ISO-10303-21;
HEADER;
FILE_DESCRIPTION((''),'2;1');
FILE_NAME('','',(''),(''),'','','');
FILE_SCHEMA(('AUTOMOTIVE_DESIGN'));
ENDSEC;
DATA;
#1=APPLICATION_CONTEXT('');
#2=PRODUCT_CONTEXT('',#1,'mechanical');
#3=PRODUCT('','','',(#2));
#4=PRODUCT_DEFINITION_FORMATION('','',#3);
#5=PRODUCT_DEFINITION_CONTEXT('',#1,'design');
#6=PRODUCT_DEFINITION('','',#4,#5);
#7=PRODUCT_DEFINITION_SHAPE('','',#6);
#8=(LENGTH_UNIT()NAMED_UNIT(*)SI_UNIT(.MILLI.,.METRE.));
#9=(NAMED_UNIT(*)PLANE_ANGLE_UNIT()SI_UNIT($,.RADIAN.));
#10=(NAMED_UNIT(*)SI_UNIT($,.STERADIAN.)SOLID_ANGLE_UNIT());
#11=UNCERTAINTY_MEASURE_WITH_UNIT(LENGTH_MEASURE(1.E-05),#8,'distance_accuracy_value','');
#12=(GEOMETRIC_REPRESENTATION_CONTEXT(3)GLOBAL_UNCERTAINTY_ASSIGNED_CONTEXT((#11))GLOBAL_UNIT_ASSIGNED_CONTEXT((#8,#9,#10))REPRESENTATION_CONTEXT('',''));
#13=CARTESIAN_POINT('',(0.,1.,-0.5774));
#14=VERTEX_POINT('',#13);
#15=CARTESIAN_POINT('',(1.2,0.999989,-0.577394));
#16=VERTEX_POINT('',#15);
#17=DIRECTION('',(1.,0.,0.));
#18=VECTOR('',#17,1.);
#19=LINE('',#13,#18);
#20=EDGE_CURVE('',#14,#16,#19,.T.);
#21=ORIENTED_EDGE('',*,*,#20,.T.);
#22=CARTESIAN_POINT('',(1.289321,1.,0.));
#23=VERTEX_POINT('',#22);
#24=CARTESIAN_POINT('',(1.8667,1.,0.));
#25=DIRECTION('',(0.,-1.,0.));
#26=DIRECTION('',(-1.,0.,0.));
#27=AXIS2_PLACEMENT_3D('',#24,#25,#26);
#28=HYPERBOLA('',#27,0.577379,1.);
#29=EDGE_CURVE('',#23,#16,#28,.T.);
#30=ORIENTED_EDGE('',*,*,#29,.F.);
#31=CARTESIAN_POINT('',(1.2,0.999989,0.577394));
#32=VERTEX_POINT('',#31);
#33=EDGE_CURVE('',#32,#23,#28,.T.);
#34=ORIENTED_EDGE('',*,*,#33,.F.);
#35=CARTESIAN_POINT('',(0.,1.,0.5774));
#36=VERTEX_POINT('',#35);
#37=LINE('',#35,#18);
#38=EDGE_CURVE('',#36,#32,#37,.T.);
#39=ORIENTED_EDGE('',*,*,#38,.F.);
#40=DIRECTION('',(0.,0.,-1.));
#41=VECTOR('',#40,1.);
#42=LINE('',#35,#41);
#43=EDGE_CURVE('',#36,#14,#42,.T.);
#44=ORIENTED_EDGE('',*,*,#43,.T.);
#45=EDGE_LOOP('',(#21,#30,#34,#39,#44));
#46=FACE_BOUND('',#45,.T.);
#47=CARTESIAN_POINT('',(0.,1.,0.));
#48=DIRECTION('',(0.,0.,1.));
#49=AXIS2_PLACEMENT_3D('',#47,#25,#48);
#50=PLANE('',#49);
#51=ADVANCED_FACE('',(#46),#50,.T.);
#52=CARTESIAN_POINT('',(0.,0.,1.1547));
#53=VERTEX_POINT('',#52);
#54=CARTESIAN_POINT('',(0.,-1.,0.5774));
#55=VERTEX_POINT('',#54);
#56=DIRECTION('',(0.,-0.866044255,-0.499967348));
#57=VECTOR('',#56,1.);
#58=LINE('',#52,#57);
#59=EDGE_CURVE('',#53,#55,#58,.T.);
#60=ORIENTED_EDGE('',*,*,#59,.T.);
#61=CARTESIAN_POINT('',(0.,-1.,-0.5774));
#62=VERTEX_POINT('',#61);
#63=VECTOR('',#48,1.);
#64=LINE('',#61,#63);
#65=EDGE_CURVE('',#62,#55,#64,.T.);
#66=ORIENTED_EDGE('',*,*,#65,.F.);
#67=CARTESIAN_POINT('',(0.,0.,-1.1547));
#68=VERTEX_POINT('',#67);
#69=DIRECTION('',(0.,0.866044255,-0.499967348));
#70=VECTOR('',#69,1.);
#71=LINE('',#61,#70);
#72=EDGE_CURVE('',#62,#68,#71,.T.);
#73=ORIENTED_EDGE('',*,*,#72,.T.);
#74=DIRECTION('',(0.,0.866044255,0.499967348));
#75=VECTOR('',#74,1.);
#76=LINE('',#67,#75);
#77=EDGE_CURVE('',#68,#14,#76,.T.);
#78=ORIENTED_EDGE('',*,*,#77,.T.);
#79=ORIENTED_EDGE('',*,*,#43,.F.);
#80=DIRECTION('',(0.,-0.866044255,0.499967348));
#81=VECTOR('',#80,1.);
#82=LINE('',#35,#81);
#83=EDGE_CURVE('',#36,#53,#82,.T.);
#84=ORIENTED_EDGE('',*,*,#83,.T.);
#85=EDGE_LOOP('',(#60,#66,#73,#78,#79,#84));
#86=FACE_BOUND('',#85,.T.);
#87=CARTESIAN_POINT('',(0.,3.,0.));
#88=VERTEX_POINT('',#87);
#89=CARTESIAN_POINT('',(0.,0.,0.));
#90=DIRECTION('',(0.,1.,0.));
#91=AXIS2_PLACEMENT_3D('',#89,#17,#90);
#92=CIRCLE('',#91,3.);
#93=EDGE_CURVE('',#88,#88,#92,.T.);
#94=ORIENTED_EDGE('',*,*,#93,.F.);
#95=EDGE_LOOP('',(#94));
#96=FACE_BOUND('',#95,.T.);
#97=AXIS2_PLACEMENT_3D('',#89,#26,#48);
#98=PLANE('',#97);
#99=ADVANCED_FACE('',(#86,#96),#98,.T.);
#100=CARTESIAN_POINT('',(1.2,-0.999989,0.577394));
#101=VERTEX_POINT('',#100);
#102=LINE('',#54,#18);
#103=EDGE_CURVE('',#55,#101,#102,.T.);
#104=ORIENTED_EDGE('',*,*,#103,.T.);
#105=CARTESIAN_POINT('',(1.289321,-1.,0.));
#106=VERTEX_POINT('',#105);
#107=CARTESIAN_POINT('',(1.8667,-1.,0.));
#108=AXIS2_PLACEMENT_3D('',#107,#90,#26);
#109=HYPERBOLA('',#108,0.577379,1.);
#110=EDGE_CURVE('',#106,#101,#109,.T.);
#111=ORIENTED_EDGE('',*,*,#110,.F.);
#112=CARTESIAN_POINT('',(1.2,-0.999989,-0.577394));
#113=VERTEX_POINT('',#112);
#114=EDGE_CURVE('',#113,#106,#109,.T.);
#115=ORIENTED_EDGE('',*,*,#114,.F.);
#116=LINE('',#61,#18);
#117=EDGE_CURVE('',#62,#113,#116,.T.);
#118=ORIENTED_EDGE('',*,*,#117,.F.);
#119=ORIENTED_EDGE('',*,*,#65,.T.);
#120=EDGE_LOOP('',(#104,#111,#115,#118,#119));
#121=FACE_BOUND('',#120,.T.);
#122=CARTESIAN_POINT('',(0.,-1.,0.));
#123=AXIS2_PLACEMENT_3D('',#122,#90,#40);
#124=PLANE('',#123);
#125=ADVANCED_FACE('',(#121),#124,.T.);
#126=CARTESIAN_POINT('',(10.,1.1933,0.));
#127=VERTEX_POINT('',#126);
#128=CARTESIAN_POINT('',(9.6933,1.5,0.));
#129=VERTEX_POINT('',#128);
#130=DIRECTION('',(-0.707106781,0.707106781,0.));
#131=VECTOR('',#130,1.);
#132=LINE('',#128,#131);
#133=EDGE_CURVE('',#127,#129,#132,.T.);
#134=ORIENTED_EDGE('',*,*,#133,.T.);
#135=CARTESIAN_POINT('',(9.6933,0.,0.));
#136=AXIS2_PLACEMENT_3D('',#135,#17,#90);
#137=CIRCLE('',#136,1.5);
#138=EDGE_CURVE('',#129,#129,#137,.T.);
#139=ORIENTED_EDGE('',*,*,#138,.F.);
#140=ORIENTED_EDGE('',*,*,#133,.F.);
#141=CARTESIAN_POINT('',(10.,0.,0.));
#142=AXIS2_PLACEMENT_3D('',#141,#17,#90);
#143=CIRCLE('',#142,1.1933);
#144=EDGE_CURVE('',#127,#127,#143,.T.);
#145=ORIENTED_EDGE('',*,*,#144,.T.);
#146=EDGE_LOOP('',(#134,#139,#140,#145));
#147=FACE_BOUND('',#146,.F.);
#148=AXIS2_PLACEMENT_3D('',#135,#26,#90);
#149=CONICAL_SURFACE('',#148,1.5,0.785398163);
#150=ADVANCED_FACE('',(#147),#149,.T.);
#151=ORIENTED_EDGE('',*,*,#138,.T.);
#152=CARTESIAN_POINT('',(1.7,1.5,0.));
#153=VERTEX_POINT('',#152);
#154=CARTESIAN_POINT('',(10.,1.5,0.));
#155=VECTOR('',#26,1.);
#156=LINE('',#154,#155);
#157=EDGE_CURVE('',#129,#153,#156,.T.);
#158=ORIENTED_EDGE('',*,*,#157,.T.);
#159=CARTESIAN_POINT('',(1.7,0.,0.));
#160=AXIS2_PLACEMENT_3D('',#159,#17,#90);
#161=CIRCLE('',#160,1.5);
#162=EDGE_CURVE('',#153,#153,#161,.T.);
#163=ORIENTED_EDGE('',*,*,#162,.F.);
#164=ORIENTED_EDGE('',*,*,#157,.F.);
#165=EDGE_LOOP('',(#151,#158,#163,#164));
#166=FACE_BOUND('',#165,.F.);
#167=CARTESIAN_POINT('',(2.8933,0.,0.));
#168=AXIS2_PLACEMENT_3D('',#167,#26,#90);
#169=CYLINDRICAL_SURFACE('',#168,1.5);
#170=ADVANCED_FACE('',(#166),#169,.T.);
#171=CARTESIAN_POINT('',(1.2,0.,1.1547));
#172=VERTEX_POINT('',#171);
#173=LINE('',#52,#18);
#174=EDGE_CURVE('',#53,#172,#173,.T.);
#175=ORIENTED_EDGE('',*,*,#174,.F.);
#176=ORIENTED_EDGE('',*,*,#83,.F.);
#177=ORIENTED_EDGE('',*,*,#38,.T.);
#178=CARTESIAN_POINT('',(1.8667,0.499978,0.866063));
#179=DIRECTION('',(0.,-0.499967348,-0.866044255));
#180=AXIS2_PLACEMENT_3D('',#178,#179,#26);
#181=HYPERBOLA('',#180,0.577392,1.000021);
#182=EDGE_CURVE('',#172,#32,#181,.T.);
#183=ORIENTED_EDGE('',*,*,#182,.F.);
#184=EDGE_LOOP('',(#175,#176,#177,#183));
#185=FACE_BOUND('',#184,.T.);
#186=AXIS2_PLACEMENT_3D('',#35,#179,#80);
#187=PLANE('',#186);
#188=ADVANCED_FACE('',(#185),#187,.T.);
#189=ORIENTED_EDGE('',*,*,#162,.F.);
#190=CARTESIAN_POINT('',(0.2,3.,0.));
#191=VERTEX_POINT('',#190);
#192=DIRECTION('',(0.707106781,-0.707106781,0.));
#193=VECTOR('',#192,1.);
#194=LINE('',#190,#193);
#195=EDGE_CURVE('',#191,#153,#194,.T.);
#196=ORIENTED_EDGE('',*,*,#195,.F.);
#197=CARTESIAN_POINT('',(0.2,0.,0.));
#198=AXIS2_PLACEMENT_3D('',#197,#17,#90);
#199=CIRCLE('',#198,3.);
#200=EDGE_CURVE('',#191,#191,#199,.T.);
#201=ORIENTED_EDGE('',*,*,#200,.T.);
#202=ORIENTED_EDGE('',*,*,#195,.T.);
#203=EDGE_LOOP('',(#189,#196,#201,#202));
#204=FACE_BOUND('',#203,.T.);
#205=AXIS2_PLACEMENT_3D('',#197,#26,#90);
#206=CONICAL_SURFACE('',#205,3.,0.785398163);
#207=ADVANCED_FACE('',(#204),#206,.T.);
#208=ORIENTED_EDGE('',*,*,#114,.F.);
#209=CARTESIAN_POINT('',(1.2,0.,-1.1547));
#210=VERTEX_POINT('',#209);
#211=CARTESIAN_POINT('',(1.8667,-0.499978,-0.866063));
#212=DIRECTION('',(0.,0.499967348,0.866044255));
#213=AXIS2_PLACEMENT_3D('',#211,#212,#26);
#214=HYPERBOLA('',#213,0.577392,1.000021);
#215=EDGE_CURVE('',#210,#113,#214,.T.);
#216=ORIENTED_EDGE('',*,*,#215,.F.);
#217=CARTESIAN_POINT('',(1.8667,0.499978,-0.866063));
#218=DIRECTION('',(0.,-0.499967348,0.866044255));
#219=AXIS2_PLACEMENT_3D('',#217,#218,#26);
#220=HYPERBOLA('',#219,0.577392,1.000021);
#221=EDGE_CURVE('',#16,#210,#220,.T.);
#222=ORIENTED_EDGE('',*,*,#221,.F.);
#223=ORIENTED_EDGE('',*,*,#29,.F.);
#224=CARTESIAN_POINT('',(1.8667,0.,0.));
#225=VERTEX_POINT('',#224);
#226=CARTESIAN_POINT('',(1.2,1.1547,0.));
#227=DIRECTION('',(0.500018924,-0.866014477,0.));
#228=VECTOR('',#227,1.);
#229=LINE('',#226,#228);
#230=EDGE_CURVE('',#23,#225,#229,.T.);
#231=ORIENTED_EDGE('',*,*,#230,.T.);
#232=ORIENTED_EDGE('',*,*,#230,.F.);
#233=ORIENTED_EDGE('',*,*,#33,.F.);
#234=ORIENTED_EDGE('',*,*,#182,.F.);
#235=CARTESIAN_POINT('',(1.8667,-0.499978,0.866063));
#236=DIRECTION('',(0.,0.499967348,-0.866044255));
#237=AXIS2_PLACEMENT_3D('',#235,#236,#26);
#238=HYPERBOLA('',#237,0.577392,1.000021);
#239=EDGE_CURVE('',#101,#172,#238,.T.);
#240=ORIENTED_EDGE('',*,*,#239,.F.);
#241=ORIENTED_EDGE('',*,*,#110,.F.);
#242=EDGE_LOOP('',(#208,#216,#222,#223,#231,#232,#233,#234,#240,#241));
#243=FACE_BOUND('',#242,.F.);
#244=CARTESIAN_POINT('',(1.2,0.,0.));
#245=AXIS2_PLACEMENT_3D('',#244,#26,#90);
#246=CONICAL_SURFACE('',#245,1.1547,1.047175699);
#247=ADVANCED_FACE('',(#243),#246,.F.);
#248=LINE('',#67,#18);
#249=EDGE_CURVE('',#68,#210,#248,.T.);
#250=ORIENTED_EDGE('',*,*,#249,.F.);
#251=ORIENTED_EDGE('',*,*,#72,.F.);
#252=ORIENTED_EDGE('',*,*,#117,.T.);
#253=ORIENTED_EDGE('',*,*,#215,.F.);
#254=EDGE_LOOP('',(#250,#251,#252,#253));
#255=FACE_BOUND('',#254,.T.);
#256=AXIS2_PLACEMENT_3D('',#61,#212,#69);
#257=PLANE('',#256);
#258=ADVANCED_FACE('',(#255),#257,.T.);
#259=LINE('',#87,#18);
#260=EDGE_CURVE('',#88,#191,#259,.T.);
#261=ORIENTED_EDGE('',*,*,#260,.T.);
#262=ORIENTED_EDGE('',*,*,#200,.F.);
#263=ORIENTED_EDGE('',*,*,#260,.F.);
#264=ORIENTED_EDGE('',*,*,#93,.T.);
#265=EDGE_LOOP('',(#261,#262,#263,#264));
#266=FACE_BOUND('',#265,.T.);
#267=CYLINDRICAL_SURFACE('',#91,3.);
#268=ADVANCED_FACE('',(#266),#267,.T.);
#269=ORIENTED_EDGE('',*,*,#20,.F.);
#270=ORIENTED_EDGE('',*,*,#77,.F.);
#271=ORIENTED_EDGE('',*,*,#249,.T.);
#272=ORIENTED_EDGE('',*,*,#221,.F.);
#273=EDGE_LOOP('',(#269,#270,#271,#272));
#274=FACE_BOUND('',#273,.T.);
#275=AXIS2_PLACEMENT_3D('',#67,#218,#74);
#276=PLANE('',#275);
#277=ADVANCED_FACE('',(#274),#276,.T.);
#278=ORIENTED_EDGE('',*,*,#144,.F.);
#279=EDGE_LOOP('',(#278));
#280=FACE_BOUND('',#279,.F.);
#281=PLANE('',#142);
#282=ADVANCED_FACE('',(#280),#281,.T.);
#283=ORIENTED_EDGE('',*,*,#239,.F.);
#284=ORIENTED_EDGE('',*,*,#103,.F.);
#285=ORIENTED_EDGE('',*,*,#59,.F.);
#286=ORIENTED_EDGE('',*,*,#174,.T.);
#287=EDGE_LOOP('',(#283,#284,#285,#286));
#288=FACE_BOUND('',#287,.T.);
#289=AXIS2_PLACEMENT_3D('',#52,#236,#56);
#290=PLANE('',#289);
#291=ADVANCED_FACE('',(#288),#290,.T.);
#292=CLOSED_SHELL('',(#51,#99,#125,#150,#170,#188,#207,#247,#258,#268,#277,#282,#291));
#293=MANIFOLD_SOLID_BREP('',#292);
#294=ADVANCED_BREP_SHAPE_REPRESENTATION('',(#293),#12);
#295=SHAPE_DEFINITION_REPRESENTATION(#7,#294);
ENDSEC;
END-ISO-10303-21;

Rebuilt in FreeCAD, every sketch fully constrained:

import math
import FreeCAD as App
import Part
import Sketcher
from FreeCAD import Vector
Q = App.Units.Quantity


def edges_at(feature, points):
    """Names of the edges that pass closest to the given points."""
    edges = feature.Shape.Edges
    near = lambda p: min(range(len(edges)), key=lambda i: edges[i].distToShape(Part.Vertex(*p))[0])
    return sorted({f"Edge{near(p) + 1}" for p in points})

doc = App.newDocument("Part")
params = doc.addObject("Spreadsheet::Sheet", "Params")
for row, (alias, value) in enumerate([
    ("sketch1_width", "1.2 mm"),
    ("sketch1_width2", "0.2 mm"),
    ("revolution_angle", "360 deg"),
    ("chamfer_size", "0.3067 mm"),
    ("chamfer_size2", "0.3067 mm"),
], start=1):
    params.set(f"A{row}", alias)
    params.set(f"B{row}", "=" + value)
    params.setAlias(f"B{row}", alias)

body = doc.addObject("PartDesign::Body", "Body")

# Sketch on XY plane
sketch1 = body.newObject("Sketcher::SketchObject", "Sketch")
sketch1.AttachmentSupport = (doc.getObject("XY_Plane"), [""])
sketch1.MapMode = "FlatFace"
sketch1.addGeometry(Part.LineSegment(Vector(1.8667, 0, 0), Vector(10, 0, 0)), False)
sketch1.addGeometry(Part.LineSegment(Vector(10, 0, 0), Vector(10, 1.5, 0)), False)
sketch1.addGeometry(Part.LineSegment(Vector(10, 1.5, 0), Vector(1.7, 1.5, 0)), False)
sketch1.addGeometry(Part.LineSegment(Vector(1.7, 1.5, 0), Vector(0.2, 3, 0)), False)
sketch1.addGeometry(Part.LineSegment(Vector(0.2, 3, 0), Vector(0, 3, 0)), False)
sketch1.addGeometry(Part.LineSegment(Vector(0, 3, 0), Vector(0, 1.1547, 0)), False)
sketch1.addGeometry(Part.LineSegment(Vector(0, 1.1547, 0), Vector(1.2, 1.1547, 0)), False)
sketch1.addGeometry(Part.LineSegment(Vector(1.2, 1.1547, 0), Vector(1.8667, 0, 0)), False)
sketch1.addConstraint(Sketcher.Constraint("Coincident", 0, 2, 1, 1))
sketch1.addConstraint(Sketcher.Constraint("Coincident", 1, 2, 2, 1))
sketch1.addConstraint(Sketcher.Constraint("Coincident", 2, 2, 3, 1))
sketch1.addConstraint(Sketcher.Constraint("Coincident", 3, 2, 4, 1))
sketch1.addConstraint(Sketcher.Constraint("Coincident", 4, 2, 5, 1))
sketch1.addConstraint(Sketcher.Constraint("Coincident", 5, 2, 6, 1))
sketch1.addConstraint(Sketcher.Constraint("Coincident", 6, 2, 7, 1))
sketch1.addConstraint(Sketcher.Constraint("Coincident", 7, 2, 0, 1))
sketch1.addConstraint(Sketcher.Constraint("Horizontal", 0))
sketch1.addConstraint(Sketcher.Constraint("Vertical", 1))
sketch1.addConstraint(Sketcher.Constraint("Horizontal", 2))
sketch1.addConstraint(Sketcher.Constraint("Horizontal", 4))
sketch1.addConstraint(Sketcher.Constraint("Vertical", 5))
sketch1.addConstraint(Sketcher.Constraint("Horizontal", 6))
sketch1.addConstraint(Sketcher.Constraint("PointOnObject", 0, 2, -1))
sketch1.addConstraint(Sketcher.Constraint("PointOnObject", 4, 2, -2))
sketch1.addConstraint(Sketcher.Constraint("DistanceX", 6, 1, 6, 2, 1.2))
sketch1.addConstraint(Sketcher.Constraint("DistanceX", -1, 1, 0, 2, 10.0))
sketch1.addConstraint(Sketcher.Constraint("DistanceY", -1, 1, 3, 2, 3.0))
sketch1.addConstraint(Sketcher.Constraint("DistanceX", -1, 1, 2, 2, 1.7))
sketch1.addConstraint(Sketcher.Constraint("Angle", 3, Q("135 deg")))
sketch1.addConstraint(Sketcher.Constraint("DistanceX", 4, 2, 4, 1, 0.2))
sketch1.addConstraint(Sketcher.Constraint("DistanceX", 0, 1, 0, 2, 8.1333))
sketch1.addConstraint(Sketcher.Constraint("DistanceY", 5, 2, 5, 1, 1.8453))
sketch1.setExpression("Constraints[16]", "Params.sketch1_width")
sketch1.setExpression("Constraints[21]", "Params.sketch1_width2")
revolution = body.newObject("PartDesign::Revolution", "Revolution")
revolution.Profile = sketch1
revolution.ReferenceAxis = (sketch1, ["H_Axis"])
revolution.setExpression("Angle", "Params.revolution_angle")

# Sketch on YZ plane
sketch2 = body.newObject("Sketcher::SketchObject", "Sketch001")
sketch2.AttachmentSupport = (doc.getObject("YZ_Plane"), [""])
sketch2.MapMode = "FlatFace"
sketch2.addGeometry(Part.LineSegment(Vector(1, 0.5774, 0), Vector(0, 1.1547, 0)), False)
sketch2.addGeometry(Part.ArcOfCircle(Part.Circle(Vector(0, 0, 0), Vector(0, 0, 1), 1.1547), math.radians(30.002137), math.radians(90)), False)
sketch2.addGeometry(Part.ArcOfCircle(Part.Circle(Vector(0, 0, 0), Vector(0, 0, 1), 1.1547), math.radians(90), math.radians(149.997863)), False)
sketch2.addGeometry(Part.LineSegment(Vector(0, 1.1547, 0), Vector(-1, 0.5774, 0)), False)
sketch2.addGeometry(Part.ArcOfCircle(Part.Circle(Vector(0, 0, 0), Vector(0, 0, 1), 1.1547), math.radians(-30.002137), math.radians(30.002137)), False)
sketch2.addGeometry(Part.LineSegment(Vector(1, 0.5774, 0), Vector(1, -0.5774, 0)), False)
sketch2.addGeometry(Part.LineSegment(Vector(-1, 0.5774, 0), Vector(-1, -0.5774, 0)), False)
sketch2.addGeometry(Part.ArcOfCircle(Part.Circle(Vector(0, 0, 0), Vector(0, 0, 1), 1.1547), math.radians(149.997863), math.radians(210.002137)), False)
sketch2.addGeometry(Part.LineSegment(Vector(-1, -0.5774, 0), Vector(0, -1.1547, 0)), False)
sketch2.addGeometry(Part.ArcOfCircle(Part.Circle(Vector(0, 0, 0), Vector(0, 0, 1), 1.1547), math.radians(-149.997863), math.radians(-90)), False)
sketch2.addGeometry(Part.ArcOfCircle(Part.Circle(Vector(0, 0, 0), Vector(0, 0, 1), 1.1547), math.radians(-90), math.radians(-30.002137)), False)
sketch2.addGeometry(Part.LineSegment(Vector(0, -1.1547, 0), Vector(1, -0.5774, 0)), False)
sketch2.addConstraint(Sketcher.Constraint("Coincident", 0, 1, 1, 1))
sketch2.addConstraint(Sketcher.Constraint("Coincident", 1, 2, 0, 2))
sketch2.addConstraint(Sketcher.Constraint("Coincident", 2, 1, 3, 1))
sketch2.addConstraint(Sketcher.Constraint("Coincident", 3, 2, 2, 2))
sketch2.addConstraint(Sketcher.Constraint("Coincident", 4, 1, 5, 2))
sketch2.addConstraint(Sketcher.Constraint("Coincident", 5, 1, 4, 2))
sketch2.addConstraint(Sketcher.Constraint("Coincident", 6, 1, 7, 1))
sketch2.addConstraint(Sketcher.Constraint("Coincident", 7, 2, 6, 2))
sketch2.addConstraint(Sketcher.Constraint("Coincident", 8, 1, 9, 1))
sketch2.addConstraint(Sketcher.Constraint("Coincident", 9, 2, 8, 2))
sketch2.addConstraint(Sketcher.Constraint("Coincident", 10, 1, 11, 1))
sketch2.addConstraint(Sketcher.Constraint("Coincident", 11, 2, 10, 2))
sketch2.addConstraint(Sketcher.Constraint("Vertical", 5))
sketch2.addConstraint(Sketcher.Constraint("Vertical", 6))
sketch2.addConstraint(Sketcher.Constraint("Coincident", 1, 3, -1, 1))
sketch2.addConstraint(Sketcher.Constraint("Coincident", 2, 3, -1, 1))
sketch2.addConstraint(Sketcher.Constraint("Coincident", 4, 3, -1, 1))
sketch2.addConstraint(Sketcher.Constraint("Coincident", 7, 3, -1, 1))
sketch2.addConstraint(Sketcher.Constraint("Coincident", 9, 3, -1, 1))
sketch2.addConstraint(Sketcher.Constraint("Coincident", 10, 3, -1, 1))
sketch2.addConstraint(Sketcher.Constraint("Coincident", 2, 1, 1, 2))
sketch2.addConstraint(Sketcher.Constraint("Coincident", 5, 1, 0, 1))
sketch2.addConstraint(Sketcher.Constraint("Coincident", 6, 1, 3, 2))
sketch2.addConstraint(Sketcher.Constraint("Coincident", 8, 1, 7, 2))
sketch2.addConstraint(Sketcher.Constraint("Coincident", 10, 1, 9, 2))
sketch2.addConstraint(Sketcher.Constraint("PointOnObject", 1, 2, -2))
sketch2.addConstraint(Sketcher.Constraint("PointOnObject", 9, 2, -2))
sketch2.addConstraint(Sketcher.Constraint("Parallel", 0, 8))
sketch2.addConstraint(Sketcher.Constraint("Parallel", 3, 11))
sketch2.addConstraint(Sketcher.Constraint("DistanceX", -1, 1, 0, 1, 1.0))
sketch2.addConstraint(Sketcher.Constraint("Radius", 1, 1.1547))
pad1 = body.newObject("PartDesign::Pad", "Pad")
pad1.Profile = sketch2
pad1.Type = "UpToFirst"
doc.recompute()

chamfer = body.newObject("PartDesign::Chamfer", "Chamfer")
chamfer.Base = (pad1, edges_at(pad1, [(10, -1.5, 0)]))
chamfer.ChamferType = "Two distances"
chamfer.setExpression("Size", "Params.chamfer_size")
chamfer.setExpression("Size2", "Params.chamfer_size2")

doc.recompute()
